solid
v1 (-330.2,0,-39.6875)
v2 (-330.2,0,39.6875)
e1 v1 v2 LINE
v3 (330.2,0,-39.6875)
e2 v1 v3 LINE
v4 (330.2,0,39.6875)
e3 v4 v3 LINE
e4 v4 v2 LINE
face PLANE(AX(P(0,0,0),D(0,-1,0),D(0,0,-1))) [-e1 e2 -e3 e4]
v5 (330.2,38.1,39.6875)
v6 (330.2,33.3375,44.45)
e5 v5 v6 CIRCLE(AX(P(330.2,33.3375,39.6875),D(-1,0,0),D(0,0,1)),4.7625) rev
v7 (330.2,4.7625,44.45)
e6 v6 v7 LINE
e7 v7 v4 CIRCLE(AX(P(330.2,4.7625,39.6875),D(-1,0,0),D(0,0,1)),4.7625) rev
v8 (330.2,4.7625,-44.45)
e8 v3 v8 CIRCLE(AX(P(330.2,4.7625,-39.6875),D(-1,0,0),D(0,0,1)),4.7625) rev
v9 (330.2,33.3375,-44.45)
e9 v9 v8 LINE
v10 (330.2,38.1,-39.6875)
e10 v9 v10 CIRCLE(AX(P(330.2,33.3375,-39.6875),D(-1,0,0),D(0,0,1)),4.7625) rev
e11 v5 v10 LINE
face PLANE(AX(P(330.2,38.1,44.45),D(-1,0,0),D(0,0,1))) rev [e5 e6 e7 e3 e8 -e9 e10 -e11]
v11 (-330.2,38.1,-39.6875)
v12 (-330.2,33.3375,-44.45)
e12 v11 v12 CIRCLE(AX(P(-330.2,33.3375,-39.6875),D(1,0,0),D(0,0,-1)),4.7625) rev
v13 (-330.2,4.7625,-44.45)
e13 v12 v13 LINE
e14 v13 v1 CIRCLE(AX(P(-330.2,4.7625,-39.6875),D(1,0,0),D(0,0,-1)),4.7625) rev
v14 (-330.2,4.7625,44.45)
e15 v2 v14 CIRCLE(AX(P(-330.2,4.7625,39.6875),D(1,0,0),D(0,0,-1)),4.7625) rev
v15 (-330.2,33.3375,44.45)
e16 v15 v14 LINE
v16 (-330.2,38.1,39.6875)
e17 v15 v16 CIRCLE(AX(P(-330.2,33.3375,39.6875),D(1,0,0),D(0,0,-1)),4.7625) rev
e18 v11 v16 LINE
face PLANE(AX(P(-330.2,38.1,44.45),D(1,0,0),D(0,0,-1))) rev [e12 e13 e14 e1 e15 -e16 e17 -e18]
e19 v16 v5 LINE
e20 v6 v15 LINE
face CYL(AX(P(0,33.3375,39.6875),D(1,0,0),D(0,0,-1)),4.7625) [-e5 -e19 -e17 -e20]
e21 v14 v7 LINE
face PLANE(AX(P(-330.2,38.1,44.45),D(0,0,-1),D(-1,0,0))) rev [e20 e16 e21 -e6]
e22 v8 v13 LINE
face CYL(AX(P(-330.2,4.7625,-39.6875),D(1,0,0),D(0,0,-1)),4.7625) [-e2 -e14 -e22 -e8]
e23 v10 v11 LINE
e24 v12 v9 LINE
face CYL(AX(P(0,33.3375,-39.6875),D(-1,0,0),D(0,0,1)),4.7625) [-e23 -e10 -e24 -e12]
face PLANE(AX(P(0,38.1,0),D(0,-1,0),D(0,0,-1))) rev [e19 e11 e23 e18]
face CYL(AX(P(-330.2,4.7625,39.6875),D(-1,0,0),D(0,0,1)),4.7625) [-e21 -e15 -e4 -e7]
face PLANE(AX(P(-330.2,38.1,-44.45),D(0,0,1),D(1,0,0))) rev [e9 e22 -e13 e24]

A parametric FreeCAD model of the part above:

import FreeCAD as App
import Part
import Sketcher

V = App.Vector
Q = App.Units.Quantity


def edges_at(feature, points):
    """Names of the edges that pass closest to the given points."""
    edges = feature.Shape.Edges
    near = lambda p: min(range(len(edges)), key=lambda i: edges[i].distToShape(Part.Vertex(*p))[0])
    return sorted({f"Edge{near(p) + 1}" for p in points})


def add_polygon(sketch, points):
    """Adds a closed chain of lines whose ends are joined by coincident constraints."""
    first, n = sketch.GeometryCount, len(points)
    for a, b in zip(points, points[1:] + points[:1]):
        sketch.addGeometry(Part.LineSegment(App.Vector(*a, 0), App.Vector(*b, 0)), False)
    for i in range(n):
        sketch.addConstraint(Sketcher.Constraint("Coincident", first + i, 2, first + (i + 1) % n, 1))

doc = App.newDocument("Part")
body = doc.addObject("PartDesign::Body", "Body")

sketch1 = body.newObject("Sketcher::SketchObject", "Sketch")
sketch1.AttachmentSupport = (doc.getObject("XZ_Plane"), [""])
sketch1.MapMode = "FlatFace"
add_polygon(sketch1, [(-330, -44), (-330, 44), (330, 44), (330, -44)])
sketch1.addConstraint([
    Sketcher.Constraint("Vertical", 0),
    Sketcher.Constraint("Horizontal", 1),
    Sketcher.Constraint("Vertical", 2),
    Sketcher.Constraint("Horizontal", 3),
    Sketcher.Constraint("Symmetric", 0, 2, 2, 2, -1, 1),
    Sketcher.Constraint("DistanceX", 1, 1, 1, 2, Q("26 in")),
    Sketcher.Constraint("DistanceY", 0, 1, 0, 2, Q("3.5 in")),
])
pad1 = body.newObject("PartDesign::Pad", "Pad")
pad1.Profile = sketch1
pad1.Length = Q("1.5 in")
pad1.Reversed = True
doc.recompute()

fillet = body.newObject("PartDesign::Fillet", "Fillet")
fillet.Base = (pad1, edges_at(pad1, [
    (0, 38.1, 44.45),
    (0, 0, 44.45),
    (0, 0, -44.45),
    (0, 38.1, -44.45),
]))
fillet.Radius = Q("0.1875 in")

doc.recompute()
